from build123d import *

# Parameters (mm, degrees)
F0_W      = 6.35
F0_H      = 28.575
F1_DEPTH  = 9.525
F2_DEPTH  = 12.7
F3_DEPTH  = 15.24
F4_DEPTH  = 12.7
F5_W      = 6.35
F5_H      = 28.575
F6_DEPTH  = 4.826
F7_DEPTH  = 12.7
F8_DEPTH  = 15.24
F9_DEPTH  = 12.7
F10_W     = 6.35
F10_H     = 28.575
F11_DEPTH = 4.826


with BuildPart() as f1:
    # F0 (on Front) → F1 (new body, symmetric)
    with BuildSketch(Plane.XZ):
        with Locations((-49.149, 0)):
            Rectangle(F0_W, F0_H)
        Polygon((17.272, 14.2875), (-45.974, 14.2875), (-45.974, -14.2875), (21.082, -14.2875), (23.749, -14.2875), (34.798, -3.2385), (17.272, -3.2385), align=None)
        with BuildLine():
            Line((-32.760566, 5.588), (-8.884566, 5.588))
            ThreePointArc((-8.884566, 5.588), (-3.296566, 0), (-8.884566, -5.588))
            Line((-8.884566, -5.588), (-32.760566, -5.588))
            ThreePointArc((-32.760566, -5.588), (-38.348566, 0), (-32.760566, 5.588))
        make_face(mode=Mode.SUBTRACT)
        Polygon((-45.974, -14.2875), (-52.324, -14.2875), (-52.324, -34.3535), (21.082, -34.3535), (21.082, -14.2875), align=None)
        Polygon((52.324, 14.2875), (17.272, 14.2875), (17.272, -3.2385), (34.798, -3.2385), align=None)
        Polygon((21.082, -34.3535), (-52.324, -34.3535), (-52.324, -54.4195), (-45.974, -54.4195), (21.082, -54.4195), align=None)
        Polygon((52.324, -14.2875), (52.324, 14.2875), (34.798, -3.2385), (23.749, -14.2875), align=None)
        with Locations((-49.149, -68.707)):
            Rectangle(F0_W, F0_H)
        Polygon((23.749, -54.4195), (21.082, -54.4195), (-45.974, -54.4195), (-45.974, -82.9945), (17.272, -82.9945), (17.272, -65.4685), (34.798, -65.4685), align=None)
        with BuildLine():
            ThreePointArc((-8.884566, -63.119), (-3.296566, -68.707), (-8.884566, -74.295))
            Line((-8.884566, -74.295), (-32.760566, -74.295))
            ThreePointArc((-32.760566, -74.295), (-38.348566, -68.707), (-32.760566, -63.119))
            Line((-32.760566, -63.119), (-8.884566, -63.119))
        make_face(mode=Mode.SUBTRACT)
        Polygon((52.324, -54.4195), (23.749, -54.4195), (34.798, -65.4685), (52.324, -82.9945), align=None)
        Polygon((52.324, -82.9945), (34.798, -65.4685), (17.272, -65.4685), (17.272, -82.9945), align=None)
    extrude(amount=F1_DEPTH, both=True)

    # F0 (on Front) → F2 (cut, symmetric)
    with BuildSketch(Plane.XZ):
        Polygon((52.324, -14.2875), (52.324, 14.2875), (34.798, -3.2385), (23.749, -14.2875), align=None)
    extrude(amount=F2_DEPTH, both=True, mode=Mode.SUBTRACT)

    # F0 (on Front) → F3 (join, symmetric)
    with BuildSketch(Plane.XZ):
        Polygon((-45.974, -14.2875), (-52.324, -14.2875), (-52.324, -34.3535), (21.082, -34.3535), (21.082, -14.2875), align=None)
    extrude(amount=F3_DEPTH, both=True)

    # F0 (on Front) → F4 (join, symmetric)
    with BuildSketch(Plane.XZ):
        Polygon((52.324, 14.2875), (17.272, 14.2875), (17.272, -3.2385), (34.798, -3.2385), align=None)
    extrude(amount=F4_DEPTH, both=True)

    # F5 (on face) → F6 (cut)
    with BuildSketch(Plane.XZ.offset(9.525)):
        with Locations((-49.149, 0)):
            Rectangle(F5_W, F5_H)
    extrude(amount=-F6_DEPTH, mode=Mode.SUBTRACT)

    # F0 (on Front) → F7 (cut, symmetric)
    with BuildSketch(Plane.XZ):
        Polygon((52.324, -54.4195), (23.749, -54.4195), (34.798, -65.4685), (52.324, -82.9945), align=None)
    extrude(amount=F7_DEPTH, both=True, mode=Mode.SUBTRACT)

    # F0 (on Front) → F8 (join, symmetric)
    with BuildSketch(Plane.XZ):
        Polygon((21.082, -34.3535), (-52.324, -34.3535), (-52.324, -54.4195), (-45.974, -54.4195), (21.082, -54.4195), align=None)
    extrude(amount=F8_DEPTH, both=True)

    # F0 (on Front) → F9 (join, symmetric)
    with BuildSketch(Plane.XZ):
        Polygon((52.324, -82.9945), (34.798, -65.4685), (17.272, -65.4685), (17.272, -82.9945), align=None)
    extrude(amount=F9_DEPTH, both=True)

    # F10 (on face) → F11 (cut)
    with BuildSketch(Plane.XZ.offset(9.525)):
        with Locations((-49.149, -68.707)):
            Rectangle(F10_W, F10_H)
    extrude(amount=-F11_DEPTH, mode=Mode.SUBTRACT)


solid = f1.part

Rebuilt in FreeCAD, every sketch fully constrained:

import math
import FreeCAD as App
import Part
import Sketcher
Q = App.Units.Quantity


def add_polygon(sketch, points):
    """Adds a closed chain of lines whose ends are joined by coincident constraints."""
    first, n = sketch.GeometryCount, len(points)
    for a, b in zip(points, points[1:] + points[:1]):
        sketch.addGeometry(Part.LineSegment(App.Vector(*a, 0), App.Vector(*b, 0)), False)
    for i in range(n):
        sketch.addConstraint(Sketcher.Constraint("Coincident", first + i, 2, first + (i + 1) % n, 1))

doc = App.newDocument("Part")
body = doc.addObject("PartDesign::Body", "Body")

sketch1 = body.newObject("Sketcher::SketchObject", "Sketch")
sketch1.AttachmentSupport = (doc.getObject("XZ_Plane"), [""])
sketch1.MapMode = "FlatFace"
add_polygon(sketch1, [(-52.324, 14.2875), (-52.324, -82.9945), (52.324, -82.9945), (52.324, -54.4195), (21.082, -54.4195), (21.082, -14.2875), (52.324, -14.2875), (52.324, 14.2875)])
sketch1.addGeometry(Part.LineSegment(App.Vector(-32.760566, -63.119, 0), App.Vector(-8.884566, -63.119, 0)), False)
sketch1.addGeometry(Part.ArcOfCircle(Part.Circle(App.Vector(-8.884566, -68.707, 0), App.Vector(0, 0, 1), 5.588), math.radians(-90), math.radians(90)), False)
sketch1.addGeometry(Part.LineSegment(App.Vector(-8.884566, -74.295, 0), App.Vector(-32.760566, -74.295, 0)), False)
sketch1.addGeometry(Part.ArcOfCircle(Part.Circle(App.Vector(-32.760566, -68.707, 0), App.Vector(0, 0, 1), 5.588), math.radians(90), math.radians(270)), False)
sketch1.addGeometry(Part.ArcOfCircle(Part.Circle(App.Vector(-32.760566, 0, 0), App.Vector(0, 0, 1), 5.588), math.radians(90), math.radians(270)), False)
sketch1.addGeometry(Part.LineSegment(App.Vector(-32.760566, 5.588, 0), App.Vector(-8.884566, 5.588, 0)), False)
sketch1.addGeometry(Part.ArcOfCircle(Part.Circle(App.Vector(-8.884566, 0, 0), App.Vector(0, 0, 1), 5.588), math.radians(-90), math.radians(90)), False)
sketch1.addGeometry(Part.LineSegment(App.Vector(-8.884566, -5.588, 0), App.Vector(-32.760566, -5.588, 0)), False)
sketch1.addConstraint([
    Sketcher.Constraint("Tangent", 8, 2, 9, 2),
    Sketcher.Constraint("Tangent", 9, 1, 10, 1),
    Sketcher.Constraint("Tangent", 10, 2, 11, 2),
    Sketcher.Constraint("Tangent", 11, 1, 8, 1),
    Sketcher.Constraint("Tangent", 12, 1, 13, 1),
    Sketcher.Constraint("Tangent", 13, 2, 14, 2),
    Sketcher.Constraint("Tangent", 14, 1, 15, 1),
    Sketcher.Constraint("Tangent", 15, 2, 12, 2),
    Sketcher.Constraint("Vertical", 0),
    Sketcher.Constraint("Horizontal", 1),
    Sketcher.Constraint("Vertical", 2),
    Sketcher.Constraint("Horizontal", 3),
    Sketcher.Constraint("Vertical", 4),
    Sketcher.Constraint("Horizontal", 5),
    Sketcher.Constraint("Vertical", 6),
    Sketcher.Constraint("Horizontal", 7),
    Sketcher.Constraint("Horizontal", 8),
    Sketcher.Constraint("Horizontal", 10),
    Sketcher.Constraint("Horizontal", 13),
    Sketcher.Constraint("Horizontal", 15),
    Sketcher.Constraint("Equal", 11, 12),
    Sketcher.Constraint("Symmetric", 5, 2, 7, 2, -1, 1),
    Sketcher.Constraint("PointOnObject", 12, 3, -1),
    Sketcher.Constraint("Vertical", 11, 3, 12, 3),
    Sketcher.Constraint("Vertical", 9, 3, 14, 3),
    Sketcher.Constraint("Vertical", 2, 2, 5, 2),
    Sketcher.Constraint("Equal", 2, 6),
    Sketcher.Constraint("Radius", 9, Q("0.22 in")),
    Sketcher.Constraint("DistanceX", 1, 1, 1, 2, Q("4.12 in")),
    Sketcher.Constraint("DistanceX", 3, 2, 3, 1, Q("1.23 in")),
    Sketcher.Constraint("DistanceX", 8, 1, 8, 2, Q("0.94 in")),
    Sketcher.Constraint("DistanceY", 0, 2, 0, 1, Q("3.83 in")),
    Sketcher.Constraint("DistanceY", 4, 1, 4, 2, Q("1.58 in")),
    Sketcher.Constraint("DistanceY", 9, 3, -1, 1, Q("2.705 in")),
    Sketcher.Constraint("DistanceX", 9, 3, -1, 1, 8.884566),
])
pad1 = body.newObject("PartDesign::Pad", "Pad")
pad1.Profile = sketch1
pad1.Length = Q("0.75 in")
pad1.Midplane = True

sketch2 = body.newObject("Sketcher::SketchObject", "Sketch001")
sketch2.AttachmentSupport = (doc.getObject("XZ_Plane"), [""])
sketch2.MapMode = "FlatFace"
add_polygon(sketch2, [(52.324, -14.2875), (52.324, 14.2875), (23.749, -14.2875)])
sketch2.addConstraint([
    Sketcher.Constraint("Vertical", 0),
    Sketcher.Constraint("Horizontal", 2),
    Sketcher.Constraint("Equal", 2, 0),
    Sketcher.Constraint("DistanceX", 2, 1, 2, 2, Q("1.125 in")),
    Sketcher.Constraint("DistanceX", -1, 1, 0, 2, Q("2.06 in")),
    Sketcher.Constraint("DistanceY", -1, 1, 0, 2, Q("0.5625 in")),
])
pocket1 = body.newObject("PartDesign::Pocket", "Pocket")
pocket1.Profile = sketch2
pocket1.Length = Q("1 in")
pocket1.Midplane = True

sketch3 = body.newObject("Sketcher::SketchObject", "Sketch002")
sketch3.AttachmentSupport = (doc.getObject("XZ_Plane"), [""])
sketch3.MapMode = "FlatFace"
add_polygon(sketch3, [(-52.324, -14.2875), (-52.324, -34.3535), (21.082, -34.3535), (21.082, -14.2875)])
sketch3.addConstraint([
    Sketcher.Constraint("Vertical", 0),
    Sketcher.Constraint("Horizontal", 1),
    Sketcher.Constraint("Vertical", 2),
    Sketcher.Constraint("Horizontal", 3),
    Sketcher.Constraint("DistanceX", 1, 1, 1, 2, Q("2.89 in")),
    Sketcher.Constraint("DistanceY", 0, 2, 0, 1, Q("0.79 in")),
    Sketcher.Constraint("DistanceX", 0, 2, -1, 1, Q("2.06 in")),
    Sketcher.Constraint("DistanceY", 2, 2, -1, 1, Q("0.5625 in")),
])
pad2 = body.newObject("PartDesign::Pad", "Pad001")
pad2.Profile = sketch3
pad2.Length = Q("1.2 in")
pad2.Midplane = True

sketch4 = body.newObject("Sketcher::SketchObject", "Sketch003")
sketch4.AttachmentSupport = (doc.getObject("XZ_Plane"), [""])
sketch4.MapMode = "FlatFace"
add_polygon(sketch4, [(52.324, 14.2875), (17.272, 14.2875), (17.272, -3.2385), (34.798, -3.2385)])
sketch4.addConstraint([
    Sketcher.Constraint("Horizontal", 0),
    Sketcher.Constraint("Vertical", 1),
    Sketcher.Constraint("Horizontal", 2),
    Sketcher.Constraint("Equal", 2, 1),
    Sketcher.Constraint("Angle", 3, Q("45 deg")),
    Sketcher.Constraint("DistanceX", 0, 2, 0, 1, Q("1.38 in")),
    Sketcher.Constraint("DistanceX", -1, 1, 0, 2, Q("0.68 in")),
    Sketcher.Constraint("DistanceY", -1, 1, 0, 2, Q("0.5625 in")),
])
pad3 = body.newObject("PartDesign::Pad", "Pad002")
pad3.Profile = sketch4
pad3.Length = Q("1 in")
pad3.Midplane = True

sketch5 = body.newObject("Sketcher::SketchObject", "Sketch004")
sketch5.AttachmentSupport = (doc.getObject("XZ_Plane"), [""])
sketch5.MapMode = "FlatFace"
sketch5.AttachmentOffset = App.Placement(App.Vector(0, 0, 0.375 * 25.4), App.Rotation())
add_polygon(sketch5, [(-52.324, 14.2875), (-52.324, -14.2875), (-45.974, -14.2875), (-45.974, 14.2875)])
sketch5.addConstraint([
    Sketcher.Constraint("Vertical", 0),
    Sketcher.Constraint("Horizontal", 1),
    Sketcher.Constraint("Vertical", 2),
    Sketcher.Constraint("Horizontal", 3),
    Sketcher.Constraint("DistanceX", 1, 1, 1, 2, Q("0.25 in")),
    Sketcher.Constraint("DistanceY", 0, 2, 0, 1, Q("1.125 in")),
    Sketcher.Constraint("DistanceX", 0, 2, -1, 1, Q("2.06 in")),
    Sketcher.Constraint("DistanceY", 0, 2, -1, 1, Q("0.5625 in")),
])
pocket2 = body.newObject("PartDesign::Pocket", "Pocket001")
pocket2.Profile = sketch5
pocket2.Length = Q("0.19 in")

sketch6 = body.newObject("Sketcher::SketchObject", "Sketch005")
sketch6.AttachmentSupport = (doc.getObject("XZ_Plane"), [""])
sketch6.MapMode = "FlatFace"
add_polygon(sketch6, [(52.324, -54.4195), (23.749, -54.4195), (52.324, -82.9945)])
sketch6.addConstraint([
    Sketcher.Constraint("Horizontal", 0),
    Sketcher.Constraint("Vertical", 2),
    Sketcher.Constraint("Equal", 0, 2),
    Sketcher.Constraint("DistanceX", 0, 2, 0, 1, Q("1.125 in")),
    Sketcher.Constraint("DistanceX", -1, 1, 1, 2, Q("2.06 in")),
    Sketcher.Constraint("DistanceY", 0, 2, -1, 1, Q("2.1425 in")),
])
pocket3 = body.newObject("PartDesign::Pocket", "Pocket002")
pocket3.Profile = sketch6
pocket3.Length = Q("1 in")
pocket3.Midplane = True

sketch7 = body.newObject("Sketcher::SketchObject", "Sketch006")
sketch7.AttachmentSupport = (doc.getObject("XZ_Plane"), [""])
sketch7.MapMode = "FlatFace"
add_polygon(sketch7, [(21.082, -34.3535), (-52.324, -34.3535), (-52.324, -54.4195), (21.082, -54.4195)])
sketch7.addConstraint([
    Sketcher.Constraint("Horizontal", 0),
    Sketcher.Constraint("Vertical", 1),
    Sketcher.Constraint("Horizontal", 2),
    Sketcher.Constraint("Vertical", 3),
    Sketcher.Constraint("DistanceX", 0, 2, 0, 1, Q("2.89 in")),
    Sketcher.Constraint("DistanceY", 1, 2, 1, 1, Q("0.79 in")),
    Sketcher.Constraint("DistanceX", 0, 2, -1, 1, Q("2.06 in")),
    Sketcher.Constraint("DistanceY", 0, 2, -1, 1, Q("1.3525 in")),
])
pad4 = body.newObject("PartDesign::Pad", "Pad003")
pad4.Profile = sketch7
pad4.Length = Q("1.2 in")
pad4.Midplane = True

sketch8 = body.newObject("Sketcher::SketchObject", "Sketch007")
sketch8.AttachmentSupport = (doc.getObject("XZ_Plane"), [""])
sketch8.MapMode = "FlatFace"
add_polygon(sketch8, [(52.324, -82.9945), (34.798, -65.4685), (17.272, -65.4685), (17.272, -82.9945)])
sketch8.addConstraint([
    Sketcher.Constraint("Horizontal", 1),
    Sketcher.Constraint("Vertical", 2),
    Sketcher.Constraint("Horizontal", 3),
    Sketcher.Constraint("Equal", 1, 2),
    Sketcher.Constraint("Angle", 0, Q("135 deg")),
    Sketcher.Constraint("DistanceX", 1, 2, 1, 1, Q("0.69 in")),
    Sketcher.Constraint("DistanceX", -1, 1, 0, 2, Q("1.37 in")),
    Sketcher.Constraint("DistanceY", 0, 2, -1, 1, Q("2.5775 in")),
])
pad5 = body.newObject("PartDesign::Pad", "Pad004")
pad5.Profile = sketch8
pad5.Length = Q("1 in")
pad5.Midplane = True

sketch9 = body.newObject("Sketcher::SketchObject", "Sketch008")
sketch9.AttachmentSupport = (doc.getObject("XZ_Plane"), [""])
sketch9.MapMode = "FlatFace"
sketch9.AttachmentOffset = App.Placement(App.Vector(0, 0, 0.375 * 25.4), App.Rotation())
add_polygon(sketch9, [(-52.324, -54.4195), (-52.324, -82.9945), (-45.974, -82.9945), (-45.974, -54.4195)])
sketch9.addConstraint([
    Sketcher.Constraint("Vertical", 0),
    Sketcher.Constraint("Horizontal", 1),
    Sketcher.Constraint("Vertical", 2),
    Sketcher.Constraint("Horizontal", 3),
    Sketcher.Constraint("DistanceX", 1, 1, 1, 2, Q("0.25 in")),
    Sketcher.Constraint("DistanceY", 0, 2, 0, 1, Q("1.125 in")),
    Sketcher.Constraint("DistanceX", 0, 2, -1, 1, Q("2.06 in")),
    Sketcher.Constraint("DistanceY", 0, 2, -1, 1, Q("3.2675 in")),
])
pocket4 = body.newObject("PartDesign::Pocket", "Pocket003")
pocket4.Profile = sketch9
pocket4.Length = Q("0.19 in")

doc.recompute()
